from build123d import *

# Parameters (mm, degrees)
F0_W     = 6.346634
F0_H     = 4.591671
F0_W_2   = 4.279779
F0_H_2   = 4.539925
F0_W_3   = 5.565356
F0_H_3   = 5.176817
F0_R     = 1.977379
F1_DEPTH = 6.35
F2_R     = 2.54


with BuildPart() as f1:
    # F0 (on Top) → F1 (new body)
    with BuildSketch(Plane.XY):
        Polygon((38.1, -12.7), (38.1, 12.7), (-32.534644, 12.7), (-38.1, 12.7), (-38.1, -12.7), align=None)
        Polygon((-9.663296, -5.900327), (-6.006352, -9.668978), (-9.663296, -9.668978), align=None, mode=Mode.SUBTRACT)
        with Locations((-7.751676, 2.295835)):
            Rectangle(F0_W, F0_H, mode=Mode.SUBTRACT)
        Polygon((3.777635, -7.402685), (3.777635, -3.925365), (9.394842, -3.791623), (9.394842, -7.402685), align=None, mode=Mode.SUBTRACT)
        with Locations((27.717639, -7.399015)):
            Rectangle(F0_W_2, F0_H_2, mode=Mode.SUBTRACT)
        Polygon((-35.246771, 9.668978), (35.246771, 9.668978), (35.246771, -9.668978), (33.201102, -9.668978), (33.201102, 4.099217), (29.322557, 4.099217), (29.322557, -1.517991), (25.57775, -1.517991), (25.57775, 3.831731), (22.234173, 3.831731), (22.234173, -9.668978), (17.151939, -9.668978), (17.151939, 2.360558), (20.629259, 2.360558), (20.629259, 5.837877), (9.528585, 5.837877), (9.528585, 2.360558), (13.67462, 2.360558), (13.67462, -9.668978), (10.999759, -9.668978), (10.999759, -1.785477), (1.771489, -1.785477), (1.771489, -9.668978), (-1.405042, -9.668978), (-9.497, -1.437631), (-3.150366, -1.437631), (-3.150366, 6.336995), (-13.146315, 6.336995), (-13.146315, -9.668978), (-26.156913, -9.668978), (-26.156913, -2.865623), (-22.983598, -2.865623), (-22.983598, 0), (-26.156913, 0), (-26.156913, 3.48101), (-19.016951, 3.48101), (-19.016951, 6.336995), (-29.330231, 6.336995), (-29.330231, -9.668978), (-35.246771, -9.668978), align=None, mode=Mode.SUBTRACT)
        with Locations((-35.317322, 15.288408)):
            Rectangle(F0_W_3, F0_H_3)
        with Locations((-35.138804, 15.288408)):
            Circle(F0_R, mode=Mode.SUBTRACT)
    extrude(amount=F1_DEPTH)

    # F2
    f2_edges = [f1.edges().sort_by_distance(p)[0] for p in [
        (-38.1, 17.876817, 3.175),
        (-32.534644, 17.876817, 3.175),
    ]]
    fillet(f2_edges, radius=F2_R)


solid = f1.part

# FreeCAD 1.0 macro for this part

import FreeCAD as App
import Part
import Sketcher
Q = App.Units.Quantity


def edges_at(feature, points):
    """Names of the edges that pass closest to the given points."""
    edges = feature.Shape.Edges
    near = lambda p: min(range(len(edges)), key=lambda i: edges[i].distToShape(Part.Vertex(*p))[0])
    return sorted({f"Edge{near(p) + 1}" for p in points})


def add_polygon(sketch, points):
    """Adds a closed chain of lines whose ends are joined by coincident constraints."""
    first, n = sketch.GeometryCount, len(points)
    for a, b in zip(points, points[1:] + points[:1]):
        sketch.addGeometry(Part.LineSegment(App.Vector(*a, 0), App.Vector(*b, 0)), False)
    for i in range(n):
        sketch.addConstraint(Sketcher.Constraint("Coincident", first + i, 2, first + (i + 1) % n, 1))

doc = App.newDocument("Part")
params = doc.addObject("Spreadsheet::Sheet", "Params")
for row, (alias, value) in enumerate([
    ("sketch1_width", "3 in"),
    ("sketch1_height", "1 in"),
    ("pad1_length", "0.25 in"),
    ("fillet_radius", "0.1 in"),
], start=1):
    params.set(f"A{row}", alias)
    params.set(f"B{row}", "=" + value)
    params.setAlias(f"B{row}", alias)

body = doc.addObject("PartDesign::Body", "Body")

# Sketch on XY plane
sketch1 = body.newObject("Sketcher::SketchObject", "Sketch")
sketch1.AttachmentSupport = (doc.getObject("XY_Plane"), [""])
sketch1.MapMode = "FlatFace"
add_polygon(sketch1, [(-38.1, -12.7), (38.1, -12.7), (38.1, 12.7), (-32.5, 12.7), (-32.5, 17.9), (-38.1, 17.9)])  # lines 0-5
add_polygon(sketch1, [(-9.7, -9.7), (-9.7, -5.9), (-6, -9.7)])  # lines 6-8
add_polygon(sketch1, [(-4.6, 0), (-10.9, 0), (-10.9, 4.6), (-4.6, 4.6)])  # lines 9-12
add_polygon(sketch1, [(9.4, -7.4), (3.8, -7.4), (3.8, -3.9), (9.4, -3.8)])  # lines 13-16
add_polygon(sketch1, [(29.9, -9.7), (25.6, -9.7), (25.6, -5.1), (29.9, -5.1)])  # lines 17-20
add_polygon(sketch1, [(-35.2, -9.7), (-35.2, 9.7), (35.2, 9.7), (35.2, -9.7), (33.2, -9.7), (33.2, 4.1), (29.3, 4.1), (29.3, -1.5), (25.6, -1.5), (25.6, 3.8), (22.2, 3.8), (22.2, -9.7), (17.2, -9.7), (17.2, 2.4), (20.6, 2.4), (20.6, 5.8), (9.5, 5.8), (9.5, 2.4), (13.7, 2.4), (13.7, -9.7), (11, -9.7), (11, -1.8), (1.8, -1.8), (1.8, -9.7), (-1.4, -9.7), (-9.5, -1.4), (-3.2, -1.4), (-3.2, 6.3), (-13.1, 6.3), (-13.1, -9.7), (-26.2, -9.7), (-26.2, -2.9), (-23, -2.9), (-23, 0), (-26.2, 0), (-26.2, 3.5), (-19, 3.5), (-19, 6.3), (-29.3, 6.3), (-29.3, -9.7)])  # lines 21-60
sketch1.addGeometry(Part.Circle(App.Vector(-35.1, 15.3, 0), App.Vector(0, 0, 1), 2), False)  # 61
sketch1.addConstraint([
    Sketcher.Constraint("Horizontal", 0),
    Sketcher.Constraint("Vertical", 1),
    Sketcher.Constraint("Horizontal", 2),
    Sketcher.Constraint("Vertical", 3),
    Sketcher.Constraint("Horizontal", 4),
    Sketcher.Constraint("Vertical", 5),
    Sketcher.Constraint("Vertical", 6),
    Sketcher.Constraint("Horizontal", 8),
    Sketcher.Constraint("Horizontal", 9),
    Sketcher.Constraint("Vertical", 10),
    Sketcher.Constraint("Horizontal", 11),
    Sketcher.Constraint("Vertical", 12),
    Sketcher.Constraint("Horizontal", 13),
    Sketcher.Constraint("Vertical", 14),
    Sketcher.Constraint("Vertical", 16),
    Sketcher.Constraint("Horizontal", 17),
    Sketcher.Constraint("Vertical", 18),
    Sketcher.Constraint("Horizontal", 19),
    Sketcher.Constraint("Vertical", 20),
    Sketcher.Constraint("Vertical", 21),
    Sketcher.Constraint("Horizontal", 22),
    Sketcher.Constraint("Vertical", 23),
    Sketcher.Constraint("Horizontal", 24),
    Sketcher.Constraint("Vertical", 25),
    Sketcher.Constraint("Horizontal", 26),
    Sketcher.Constraint("Vertical", 27),
    Sketcher.Constraint("Horizontal", 28),
    Sketcher.Constraint("Vertical", 29),
    Sketcher.Constraint("Horizontal", 30),
    Sketcher.Constraint("Vertical", 31),
    Sketcher.Constraint("Horizontal", 32),
    Sketcher.Constraint("Vertical", 33),
    Sketcher.Constraint("Horizontal", 34),
    Sketcher.Constraint("Vertical", 35),
    Sketcher.Constraint("Horizontal", 36),
    Sketcher.Constraint("Vertical", 37),
    Sketcher.Constraint("Horizontal", 38),
    Sketcher.Constraint("Vertical", 39),
    Sketcher.Constraint("Horizontal", 40),
    Sketcher.Constraint("Vertical", 41),
    Sketcher.Constraint("Horizontal", 42),
    Sketcher.Constraint("Vertical", 43),
    Sketcher.Constraint("Horizontal", 44),
    Sketcher.Constraint("Horizontal", 46),
    Sketcher.Constraint("Vertical", 47),
    Sketcher.Constraint("Horizontal", 48),
    Sketcher.Constraint("Vertical", 49),
    Sketcher.Constraint("Horizontal", 50),
    Sketcher.Constraint("Vertical", 51),
    Sketcher.Constraint("Horizontal", 52),
    Sketcher.Constraint("Vertical", 53),
    Sketcher.Constraint("Horizontal", 54),
    Sketcher.Constraint("Vertical", 55),
    Sketcher.Constraint("Horizontal", 56),
    Sketcher.Constraint("Vertical", 57),
    Sketcher.Constraint("Horizontal", 58),
    Sketcher.Constraint("Vertical", 59),
    Sketcher.Constraint("Horizontal", 60),
    Sketcher.Constraint("Symmetric", 1, 2, 5, 2, -1, 1),
    Sketcher.Constraint("Symmetric", 21, 2, 23, 2, -1, 1),
    Sketcher.Constraint("PointOnObject", 9, 2, -1),
    Sketcher.Constraint("PointOnObject", 53, 2, -1),
    Sketcher.Constraint("Horizontal", 8, 2, 17, 2),
    Sketcher.Constraint("Horizontal", 20, 2, 23, 2),
    Sketcher.Constraint("Horizontal", 24, 2, 31, 2),
    Sketcher.Constraint("Horizontal", 34, 2, 37, 2),
    Sketcher.Constraint("Horizontal", 32, 2, 39, 2),
    Sketcher.Constraint("Horizontal", 40, 2, 43, 2),
    Sketcher.Constraint("Horizontal", 44, 2, 49, 2),
    Sketcher.Constraint("Horizontal", 48, 2, 57, 2),
    Sketcher.Constraint("Horizontal", 50, 2, 59, 2),
    Sketcher.Constraint("Vertical", 18, 2, 28, 2),
    Sketcher.Constraint("Vertical", 51, 2, 54, 2),
    Sketcher.Constraint("Equal", 11, 46),
    Sketcher.Constraint("Equal", 34, 14),
    Sketcher.Constraint("Equal", 13, 27),
    Sketcher.Constraint("Equal", 14, 35),
    Sketcher.Constraint("DistanceX", 0, 1, 0, 2, Q("3 in")),
    Sketcher.Constraint("DistanceY", 1, 1, 1, 2, Q("1 in")),
    Sketcher.Constraint("Diameter", 61, 3.954758),
    Sketcher.Constraint("DistanceY", 41, 1, 41, 2, 7.883501),
    Sketcher.Constraint("Distance", 15, 5.618799),
    Sketcher.Constraint("DistanceX", 17, 2, 17, 1, 4.279779),
    Sketcher.Constraint("DistanceX", 24, 2, 24, 1, 2.045669),
    Sketcher.Constraint("DistanceX", 34, 1, 34, 2, 3.47732),
    Sketcher.Constraint("DistanceX", 40, 2, 40, 1, 2.674861),
    Sketcher.Constraint("DistanceX", 42, 2, 42, 1, 9.22827),
    Sketcher.Constraint("DistanceX", 44, 2, 44, 1, 3.176531),
    Sketcher.Constraint("DistanceX", 48, 2, 48, 1, 9.995949),
    Sketcher.Constraint("DistanceX", 58, 2, 58, 1, 10.31328),
    Sketcher.Constraint("DistanceX", 60, 2, 60, 1, 5.91654),
    Sketcher.Constraint("DistanceY", 6, 1, 6, 2, 3.768651),
    Sketcher.Constraint("DistanceY", 10, 1, 10, 2, 4.591671),
    Sketcher.Constraint("DistanceY", 16, 2, 16, 1, 3.611062),
    Sketcher.Constraint("DistanceY", 31, 2, 31, 1, 13.500709),
    Sketcher.Constraint("DistanceY", 55, 1, 55, 2, 3.48101),
    Sketcher.Constraint("DistanceX", 45, 2, -1, 1, 9.497),
    Sketcher.Constraint("DistanceX", 52, 2, -1, 1, 22.983598),
    Sketcher.Constraint("Distance", 45, 11.54274),
    Sketcher.Constraint("DistanceX", 2, 2, 2, 1, 70.634644),
    Sketcher.Constraint("DistanceX", 8, 2, 8, 1, 3.656944),
    Sketcher.Constraint("DistanceX", 9, 2, 9, 1, 6.346634),
    Sketcher.Constraint("DistanceX", 22, 1, 22, 2, 70.493542),
    Sketcher.Constraint("DistanceX", 26, 2, 26, 1, 3.878545),
    Sketcher.Constraint("DistanceX", 28, 2, 28, 1, 3.744807),
    Sketcher.Constraint("DistanceX", 30, 2, 30, 1, 3.343577),
    Sketcher.Constraint("DistanceX", 32, 2, 32, 1, 5.082234),
    Sketcher.Constraint("DistanceX", 36, 2, 36, 1, 11.100674),
    Sketcher.Constraint("DistanceX", 38, 1, 38, 2, 4.146035),
    Sketcher.Constraint("DistanceX", 50, 2, 50, 1, 13.010598),
    Sketcher.Constraint("DistanceY", 3, 1, 3, 2, 5.176817),
    Sketcher.Constraint("DistanceY", 18, 1, 18, 2, 4.539925),
    Sketcher.Constraint("DistanceY", 21, 1, 21, 2, 19.337956),
    Sketcher.Constraint("DistanceY", 25, 1, 25, 2, 13.768195),
    Sketcher.Constraint("DistanceY", 33, 1, 33, 2, 12.029536),
    Sketcher.Constraint("DistanceY", 47, 1, 47, 2, 7.774626),
    Sketcher.Constraint("DistanceY", 51, 1, 51, 2, 6.803355),
    Sketcher.Constraint("DistanceX", 7, 2, -1, 1, 6.006352),
    Sketcher.Constraint("DistanceX", 11, 2, -1, 1, 4.578359),
    Sketcher.Constraint("DistanceX", 61, 3, -1, 1, 35.138804),
    Sketcher.Constraint("DistanceY", -1, 1, 61, 3, 15.288408),
    Sketcher.Constraint("DistanceX", -1, 1, 13, 2, 3.777635),
    Sketcher.Constraint("DistanceY", 13, 2, -1, 1, 7.402685),
])
sketch1.setExpression("Constraints[138]", "Params.sketch1_width")
sketch1.setExpression("Constraints[139]", "Params.sketch1_height")
pad1 = body.newObject("PartDesign::Pad", "Pad")
pad1.Profile = sketch1
pad1.setExpression("Length", "Params.pad1_length")
doc.recompute()

fillet = body.newObject("PartDesign::Fillet", "Fillet")
fillet.Base = (pad1, edges_at(pad1, [(-38.1, 17.877, 3.175), (-32.535, 17.877, 3.175)]))
fillet.setExpression("Radius", "Params.fillet_radius")

doc.recompute()
